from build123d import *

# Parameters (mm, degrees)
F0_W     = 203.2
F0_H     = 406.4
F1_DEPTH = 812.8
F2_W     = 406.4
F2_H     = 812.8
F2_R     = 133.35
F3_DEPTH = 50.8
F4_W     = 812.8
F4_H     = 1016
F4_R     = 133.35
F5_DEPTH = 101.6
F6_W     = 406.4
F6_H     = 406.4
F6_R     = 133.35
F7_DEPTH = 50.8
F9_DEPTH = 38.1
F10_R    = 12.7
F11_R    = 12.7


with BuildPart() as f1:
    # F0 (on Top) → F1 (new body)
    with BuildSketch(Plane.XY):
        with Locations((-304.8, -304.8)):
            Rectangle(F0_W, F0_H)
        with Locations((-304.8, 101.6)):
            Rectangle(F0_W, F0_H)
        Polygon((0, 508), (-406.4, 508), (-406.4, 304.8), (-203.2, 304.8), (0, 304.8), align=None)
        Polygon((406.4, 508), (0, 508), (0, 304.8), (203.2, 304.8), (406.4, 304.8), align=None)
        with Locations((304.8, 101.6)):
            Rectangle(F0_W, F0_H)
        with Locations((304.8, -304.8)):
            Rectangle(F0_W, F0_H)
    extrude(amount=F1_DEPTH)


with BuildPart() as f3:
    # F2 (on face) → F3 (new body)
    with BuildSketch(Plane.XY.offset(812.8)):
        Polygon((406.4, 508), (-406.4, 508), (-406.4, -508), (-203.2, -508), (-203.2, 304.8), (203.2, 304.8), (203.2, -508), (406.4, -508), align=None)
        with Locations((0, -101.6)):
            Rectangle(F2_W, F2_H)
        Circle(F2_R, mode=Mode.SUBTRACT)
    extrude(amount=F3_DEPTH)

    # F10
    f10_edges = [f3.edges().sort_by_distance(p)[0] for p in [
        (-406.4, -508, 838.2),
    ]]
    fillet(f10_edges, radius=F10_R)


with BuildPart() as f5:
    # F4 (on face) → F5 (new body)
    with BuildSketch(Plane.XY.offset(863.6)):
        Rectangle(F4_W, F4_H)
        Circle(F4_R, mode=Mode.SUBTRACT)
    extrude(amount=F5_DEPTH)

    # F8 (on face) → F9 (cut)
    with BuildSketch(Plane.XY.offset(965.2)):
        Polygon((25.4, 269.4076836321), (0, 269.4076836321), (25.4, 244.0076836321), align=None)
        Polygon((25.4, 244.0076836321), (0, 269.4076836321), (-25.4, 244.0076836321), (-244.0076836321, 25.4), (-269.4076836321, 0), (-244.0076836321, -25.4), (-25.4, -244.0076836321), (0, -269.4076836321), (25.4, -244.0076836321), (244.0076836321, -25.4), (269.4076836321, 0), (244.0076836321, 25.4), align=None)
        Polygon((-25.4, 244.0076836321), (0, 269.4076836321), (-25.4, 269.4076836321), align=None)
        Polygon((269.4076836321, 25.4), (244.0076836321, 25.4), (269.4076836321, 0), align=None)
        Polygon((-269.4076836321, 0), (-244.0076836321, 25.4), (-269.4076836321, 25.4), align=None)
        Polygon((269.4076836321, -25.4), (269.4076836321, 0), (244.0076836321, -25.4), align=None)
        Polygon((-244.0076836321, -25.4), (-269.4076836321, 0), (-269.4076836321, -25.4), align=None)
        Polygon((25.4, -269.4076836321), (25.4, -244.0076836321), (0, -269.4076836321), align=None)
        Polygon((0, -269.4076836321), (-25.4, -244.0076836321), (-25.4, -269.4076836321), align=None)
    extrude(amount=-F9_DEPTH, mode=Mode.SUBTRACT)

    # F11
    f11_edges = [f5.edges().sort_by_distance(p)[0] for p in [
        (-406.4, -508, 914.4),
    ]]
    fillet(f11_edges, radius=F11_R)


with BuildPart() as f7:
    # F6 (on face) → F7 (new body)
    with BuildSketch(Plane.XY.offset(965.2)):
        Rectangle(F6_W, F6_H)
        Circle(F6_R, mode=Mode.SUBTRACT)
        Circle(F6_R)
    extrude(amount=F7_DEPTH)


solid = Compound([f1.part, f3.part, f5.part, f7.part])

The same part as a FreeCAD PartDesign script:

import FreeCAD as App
import Part
import Sketcher
from FreeCAD import Vector
Q = App.Units.Quantity


def edges_at(feature, points):
    """Names of the edges that pass closest to the given points."""
    edges = feature.Shape.Edges
    near = lambda p: min(range(len(edges)), key=lambda i: edges[i].distToShape(Part.Vertex(*p))[0])
    return sorted({f"Edge{near(p) + 1}" for p in points})


def add_polygon(sketch, points):
    """Adds a closed chain of lines whose ends are joined by coincident constraints."""
    first, n = sketch.GeometryCount, len(points)
    for a, b in zip(points, points[1:] + points[:1]):
        sketch.addGeometry(Part.LineSegment(App.Vector(*a, 0), App.Vector(*b, 0)), False)
    for i in range(n):
        sketch.addConstraint(Sketcher.Constraint("Coincident", first + i, 2, first + (i + 1) % n, 1))

doc = App.newDocument("Part")
body = doc.addObject("PartDesign::Body", "Body")

# Sketch on XY plane
sketch1 = body.newObject("Sketcher::SketchObject", "Sketch")
sketch1.AttachmentSupport = (doc.getObject("XY_Plane"), [""])
sketch1.MapMode = "FlatFace"
add_polygon(sketch1, [(-406.4, -508), (-203.2, -508), (-203.2, 304.8), (203.2, 304.8), (203.2, -508), (406.4, -508), (406.4, 508), (-406.4, 508)])  # lines 0-7
sketch1.addConstraint([
    Sketcher.Constraint("Horizontal", 0),
    Sketcher.Constraint("Vertical", 1),
    Sketcher.Constraint("Horizontal", 2),
    Sketcher.Constraint("Vertical", 3),
    Sketcher.Constraint("Horizontal", 4),
    Sketcher.Constraint("Vertical", 5),
    Sketcher.Constraint("Horizontal", 6),
    Sketcher.Constraint("Vertical", 7),
    Sketcher.Constraint("Symmetric", 4, 2, 6, 2, -1, 1),
    Sketcher.Constraint("Symmetric", 0, 2, 3, 2, -2),
    Sketcher.Constraint("Equal", 6, 1),
    Sketcher.Constraint("DistanceX", 0, 1, 0, 2, Q("8 in")),
    Sketcher.Constraint("DistanceX", 2, 1, 2, 2, Q("16 in")),
    Sketcher.Constraint("DistanceY", 5, 1, 5, 2, Q("40 in")),
])
pad1 = body.newObject("PartDesign::Pad", "Pad")
pad1.Profile = sketch1
pad1.Length = Q("32 in")
body2 = doc.addObject("PartDesign::Body", "Body001")

# Sketch on XY plane
sketch2 = body2.newObject("Sketcher::SketchObject", "Sketch001")
sketch2.AttachmentSupport = (doc.getObject("XY_Plane001"), [""])
sketch2.MapMode = "FlatFace"
sketch2.AttachmentOffset = App.Placement(Vector(0, 0, 32 * 25.4), App.Rotation())
add_polygon(sketch2, [(406.4, 508), (-406.4, 508), (-406.4, -508), (406.4, -508)])  # lines 0-3
sketch2.addGeometry(Part.Circle(Vector(0, 0, 0), Vector(0, 0, 1), 133.35), False)  # 4
sketch2.addConstraint([
    Sketcher.Constraint("Horizontal", 0),
    Sketcher.Constraint("Vertical", 1),
    Sketcher.Constraint("Horizontal", 2),
    Sketcher.Constraint("Vertical", 3),
    Sketcher.Constraint("Coincident", 4, 3, -1, 1),
    Sketcher.Constraint("Symmetric", 0, 2, 2, 2, -1, 1),
    Sketcher.Constraint("Diameter", 4, Q("10.5 in")),
    Sketcher.Constraint("DistanceX", 0, 2, 0, 1, Q("32 in")),
    Sketcher.Constraint("DistanceY", 1, 2, 1, 1, Q("40 in")),
])
pad2 = body2.newObject("PartDesign::Pad", "Pad001")
pad2.Profile = sketch2
pad2.Length = Q("2 in")
doc.recompute()

fillet = body2.newObject("PartDesign::Fillet", "Fillet")
fillet.Base = (pad2, edges_at(pad2, [(-406.4, -508, 838.2)]))
fillet.Radius = Q("0.5 in")
body3 = doc.addObject("PartDesign::Body", "Body002")

# Sketch on XY plane
sketch3 = body3.newObject("Sketcher::SketchObject", "Sketch002")
sketch3.AttachmentSupport = (doc.getObject("XY_Plane002"), [""])
sketch3.MapMode = "FlatFace"
sketch3.AttachmentOffset = App.Placement(Vector(0, 0, 34 * 25.4), App.Rotation())
add_polygon(sketch3, [(-406.4, 508), (-406.4, -508), (406.4, -508), (406.4, 508)])  # lines 0-3
sketch3.addGeometry(Part.Circle(Vector(0, 0, 0), Vector(0, 0, 1), 133.35), False)  # 4
sketch3.addConstraint([
    Sketcher.Constraint("Vertical", 0),
    Sketcher.Constraint("Horizontal", 1),
    Sketcher.Constraint("Vertical", 2),
    Sketcher.Constraint("Horizontal", 3),
    Sketcher.Constraint("Coincident", 4, 3, -1, 1),
    Sketcher.Constraint("Symmetric", 0, 2, 2, 2, -1, 1),
    Sketcher.Constraint("Diameter", 4, Q("10.5 in")),
    Sketcher.Constraint("DistanceX", 1, 1, 1, 2, Q("32 in")),
    Sketcher.Constraint("DistanceY", 0, 2, 0, 1, Q("40 in")),
])
pad3 = body3.newObject("PartDesign::Pad", "Pad002")
pad3.Profile = sketch3
pad3.Length = Q("4 in")

# Sketch on XY plane
sketch4 = body3.newObject("Sketcher::SketchObject", "Sketch003")
sketch4.AttachmentSupport = (doc.getObject("XY_Plane002"), [""])
sketch4.MapMode = "FlatFace"
sketch4.AttachmentOffset = App.Placement(Vector(0, 0, 38 * 25.4), App.Rotation())
add_polygon(sketch4, [(25.4, 269.407684), (-25.4, 269.407684), (-25.4, 244.007684), (-244.007684, 25.4), (-269.407684, 25.4), (-269.407684, -25.4), (-244.007684, -25.4), (-25.4, -244.007684), (-25.4, -269.407684), (25.4, -269.407684), (25.4, -244.007684), (244.007684, -25.4), (269.407684, -25.4), (269.407684, 25.4), (244.007684, 25.4), (25.4, 244.007684)])  # lines 0-15
sketch4.addConstraint([
    Sketcher.Constraint("Horizontal", 0),
    Sketcher.Constraint("Vertical", 1),
    Sketcher.Constraint("Horizontal", 3),
    Sketcher.Constraint("Vertical", 4),
    Sketcher.Constraint("Horizontal", 5),
    Sketcher.Constraint("Vertical", 7),
    Sketcher.Constraint("Horizontal", 8),
    Sketcher.Constraint("Vertical", 9),
    Sketcher.Constraint("Horizontal", 11),
    Sketcher.Constraint("Vertical", 12),
    Sketcher.Constraint("Horizontal", 13),
    Sketcher.Constraint("Vertical", 15),
    Sketcher.Constraint("Symmetric", 0, 2, 8, 2, -1, 1),
    Sketcher.Constraint("Symmetric", 2, 2, 10, 2, -1, 1),
    Sketcher.Constraint("Symmetric", 4, 2, 12, 2, -1, 1),
    Sketcher.Constraint("Symmetric", 6, 2, 14, 2, -1, 1),
    Sketcher.Constraint("Symmetric", 6, 2, 9, 2, -2),
    Sketcher.Constraint("Symmetric", 5, 2, 10, 2, -2),
    Sketcher.Constraint("Perpendicular", 2, 6),
    Sketcher.Constraint("Perpendicular", 6, 10),
    Sketcher.Constraint("Perpendicular", 10, 14),
    Sketcher.Constraint("Equal", 13, 1),
    Sketcher.Constraint("Equal", 8, 4),
    Sketcher.Constraint("DistanceX", 0, 2, 0, 1, Q("2 in")),
    Sketcher.Constraint("DistanceX", 3, 2, 3, 1, Q("1 in")),
    Sketcher.Constraint("Distance", 2, Q("309.157951 mm")),
])
pocket1 = body3.newObject("PartDesign::Pocket", "Pocket")
pocket1.Profile = sketch4
pocket1.Length = Q("1.5 in")
doc.recompute()

fillet2 = body3.newObject("PartDesign::Fillet", "Fillet001")
fillet2.Base = (pocket1, edges_at(pocket1, [(-406.4, -508, 914.4)]))
fillet2.Radius = Q("0.5 in")
body4 = doc.addObject("PartDesign::Body", "Body003")

# Sketch on XY plane
sketch5 = body4.newObject("Sketcher::SketchObject", "Sketch004")
sketch5.AttachmentSupport = (doc.getObject("XY_Plane003"), [""])
sketch5.MapMode = "FlatFace"
sketch5.AttachmentOffset = App.Placement(Vector(0, 0, 38 * 25.4), App.Rotation())
add_polygon(sketch5, [(-203.2, 203.2), (-203.2, -203.2), (203.2, -203.2), (203.2, 203.2)])  # lines 0-3
sketch5.addConstraint([
    Sketcher.Constraint("Vertical", 0),
    Sketcher.Constraint("Horizontal", 1),
    Sketcher.Constraint("Vertical", 2),
    Sketcher.Constraint("Horizontal", 3),
    Sketcher.Constraint("Symmetric", 0, 2, 2, 2, -1, 1),
    Sketcher.Constraint("Equal", 3, 0),
    Sketcher.Constraint("DistanceX", 1, 1, 1, 2, Q("16 in")),
])
pad4 = body4.newObject("PartDesign::Pad", "Pad003")
pad4.Profile = sketch5
pad4.Length = Q("2 in")

doc.recompute()
